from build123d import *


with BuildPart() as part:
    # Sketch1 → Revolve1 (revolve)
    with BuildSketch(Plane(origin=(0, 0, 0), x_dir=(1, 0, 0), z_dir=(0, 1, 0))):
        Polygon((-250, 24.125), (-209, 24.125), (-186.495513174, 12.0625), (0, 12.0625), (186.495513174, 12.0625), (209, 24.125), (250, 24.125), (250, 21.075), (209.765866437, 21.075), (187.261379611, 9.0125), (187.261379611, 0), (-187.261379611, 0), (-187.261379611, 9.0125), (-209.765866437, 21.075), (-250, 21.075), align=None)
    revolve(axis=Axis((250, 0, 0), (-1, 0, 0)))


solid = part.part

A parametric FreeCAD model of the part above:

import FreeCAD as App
import Part
import Sketcher
from FreeCAD import Vector
Q = App.Units.Quantity


def add_polygon(sketch, points):
    """Adds a closed chain of lines whose ends are joined by coincident constraints."""
    first, n = sketch.GeometryCount, len(points)
    for a, b in zip(points, points[1:] + points[:1]):
        sketch.addGeometry(Part.LineSegment(App.Vector(*a, 0), App.Vector(*b, 0)), False)
    for i in range(n):
        sketch.addConstraint(Sketcher.Constraint("Coincident", first + i, 2, first + (i + 1) % n, 1))

doc = App.newDocument("Part")
params = doc.addObject("Spreadsheet::Sheet", "Params")
for row, (alias, value) in enumerate([
    ("sketch1_width", "41 mm"),
    ("sketch1_height", "3.05 mm"),
    ("revolution_angle", "360 deg"),
], start=1):
    params.set(f"A{row}", alias)
    params.set(f"B{row}", "=" + value)
    params.setAlias(f"B{row}", alias)

body = doc.addObject("PartDesign::Body", "Body")

sketch1 = doc.addObject("Sketcher::SketchObject", "Sketch")
body.addObject(sketch1)
sketch1.AttachmentSupport = (doc.XZ_Plane, [""])
sketch1.MapMode = "FlatFace"
add_polygon(sketch1, [(-209, -24.1), (-250, -24.1), (-250, -21.1), (-209.8, -21.1), (-187.3, -9), (-187.3, 0), (187.3, 0), (187.3, -9), (209.8, -21.1), (250, -21.1), (250, -24.1), (209, -24.1), (186.5, -12.1), (-186.5, -12.1)])
sketch1.addConstraint(Sketcher.Constraint("Horizontal", 0))
sketch1.addConstraint(Sketcher.Constraint("Vertical", 1))
sketch1.addConstraint(Sketcher.Constraint("Horizontal", 2))
sketch1.addConstraint(Sketcher.Constraint("Vertical", 4))
sketch1.addConstraint(Sketcher.Constraint("Horizontal", 5))
sketch1.addConstraint(Sketcher.Constraint("Vertical", 6))
sketch1.addConstraint(Sketcher.Constraint("Horizontal", 8))
sketch1.addConstraint(Sketcher.Constraint("Vertical", 9))
sketch1.addConstraint(Sketcher.Constraint("Horizontal", 10))
sketch1.addConstraint(Sketcher.Constraint("Horizontal", 12))
sketch1.addConstraint(Sketcher.Constraint("Symmetric", 4, 2, 5, 2, -1, 1))
sketch1.addConstraint(Sketcher.Constraint("Symmetric", 2, 2, 7, 2, -2))
sketch1.addConstraint(Sketcher.Constraint("Symmetric", 0, 2, 9, 2, -2))
sketch1.addConstraint(Sketcher.Constraint("Parallel", 7, 11))
sketch1.addConstraint(Sketcher.Constraint("Parallel", 3, 13))
sketch1.addConstraint(Sketcher.Constraint("Horizontal", 3, 2, 6, 2))
sketch1.addConstraint(Sketcher.Constraint("Equal", 0, 10))
sketch1.addConstraint(Sketcher.Constraint("Equal", 7, 11))
sketch1.addConstraint(Sketcher.Constraint("DistanceX", 0, 2, 0, 1, Q("41 mm")))
sketch1.addConstraint(Sketcher.Constraint("DistanceX", 0, 2, -1, 1, Q("250 mm")))
sketch1.addConstraint(Sketcher.Constraint("DistanceY", 1, 1, 1, 2, Q("3.05 mm")))
sketch1.addConstraint(Sketcher.Constraint("DistanceY", 4, 1, 4, 2, Q("9.0125 mm")))
sketch1.addConstraint(Sketcher.Constraint("DistanceY", 0, 2, -1, 1, Q("24.125 mm")))
sketch1.addConstraint(Sketcher.Constraint("DistanceX", 5, 1, 5, 2, Q("374.522759 mm")))
sketch1.addConstraint(Sketcher.Constraint("DistanceX", 2, 1, 2, 2, Q("40.234134 mm")))
sketch1.setExpression("Constraints[32]", "Params.sketch1_width")
sketch1.setExpression("Constraints[34]", "Params.sketch1_height")
revolution = doc.addObject("PartDesign::Revolution", "Revolution")
body.addObject(revolution)
revolution.Profile = sketch1
revolution.ReferenceAxis = (sketch1, ["H_Axis"])
revolution.setExpression("Angle", "Params.revolution_angle")

doc.recompute()
